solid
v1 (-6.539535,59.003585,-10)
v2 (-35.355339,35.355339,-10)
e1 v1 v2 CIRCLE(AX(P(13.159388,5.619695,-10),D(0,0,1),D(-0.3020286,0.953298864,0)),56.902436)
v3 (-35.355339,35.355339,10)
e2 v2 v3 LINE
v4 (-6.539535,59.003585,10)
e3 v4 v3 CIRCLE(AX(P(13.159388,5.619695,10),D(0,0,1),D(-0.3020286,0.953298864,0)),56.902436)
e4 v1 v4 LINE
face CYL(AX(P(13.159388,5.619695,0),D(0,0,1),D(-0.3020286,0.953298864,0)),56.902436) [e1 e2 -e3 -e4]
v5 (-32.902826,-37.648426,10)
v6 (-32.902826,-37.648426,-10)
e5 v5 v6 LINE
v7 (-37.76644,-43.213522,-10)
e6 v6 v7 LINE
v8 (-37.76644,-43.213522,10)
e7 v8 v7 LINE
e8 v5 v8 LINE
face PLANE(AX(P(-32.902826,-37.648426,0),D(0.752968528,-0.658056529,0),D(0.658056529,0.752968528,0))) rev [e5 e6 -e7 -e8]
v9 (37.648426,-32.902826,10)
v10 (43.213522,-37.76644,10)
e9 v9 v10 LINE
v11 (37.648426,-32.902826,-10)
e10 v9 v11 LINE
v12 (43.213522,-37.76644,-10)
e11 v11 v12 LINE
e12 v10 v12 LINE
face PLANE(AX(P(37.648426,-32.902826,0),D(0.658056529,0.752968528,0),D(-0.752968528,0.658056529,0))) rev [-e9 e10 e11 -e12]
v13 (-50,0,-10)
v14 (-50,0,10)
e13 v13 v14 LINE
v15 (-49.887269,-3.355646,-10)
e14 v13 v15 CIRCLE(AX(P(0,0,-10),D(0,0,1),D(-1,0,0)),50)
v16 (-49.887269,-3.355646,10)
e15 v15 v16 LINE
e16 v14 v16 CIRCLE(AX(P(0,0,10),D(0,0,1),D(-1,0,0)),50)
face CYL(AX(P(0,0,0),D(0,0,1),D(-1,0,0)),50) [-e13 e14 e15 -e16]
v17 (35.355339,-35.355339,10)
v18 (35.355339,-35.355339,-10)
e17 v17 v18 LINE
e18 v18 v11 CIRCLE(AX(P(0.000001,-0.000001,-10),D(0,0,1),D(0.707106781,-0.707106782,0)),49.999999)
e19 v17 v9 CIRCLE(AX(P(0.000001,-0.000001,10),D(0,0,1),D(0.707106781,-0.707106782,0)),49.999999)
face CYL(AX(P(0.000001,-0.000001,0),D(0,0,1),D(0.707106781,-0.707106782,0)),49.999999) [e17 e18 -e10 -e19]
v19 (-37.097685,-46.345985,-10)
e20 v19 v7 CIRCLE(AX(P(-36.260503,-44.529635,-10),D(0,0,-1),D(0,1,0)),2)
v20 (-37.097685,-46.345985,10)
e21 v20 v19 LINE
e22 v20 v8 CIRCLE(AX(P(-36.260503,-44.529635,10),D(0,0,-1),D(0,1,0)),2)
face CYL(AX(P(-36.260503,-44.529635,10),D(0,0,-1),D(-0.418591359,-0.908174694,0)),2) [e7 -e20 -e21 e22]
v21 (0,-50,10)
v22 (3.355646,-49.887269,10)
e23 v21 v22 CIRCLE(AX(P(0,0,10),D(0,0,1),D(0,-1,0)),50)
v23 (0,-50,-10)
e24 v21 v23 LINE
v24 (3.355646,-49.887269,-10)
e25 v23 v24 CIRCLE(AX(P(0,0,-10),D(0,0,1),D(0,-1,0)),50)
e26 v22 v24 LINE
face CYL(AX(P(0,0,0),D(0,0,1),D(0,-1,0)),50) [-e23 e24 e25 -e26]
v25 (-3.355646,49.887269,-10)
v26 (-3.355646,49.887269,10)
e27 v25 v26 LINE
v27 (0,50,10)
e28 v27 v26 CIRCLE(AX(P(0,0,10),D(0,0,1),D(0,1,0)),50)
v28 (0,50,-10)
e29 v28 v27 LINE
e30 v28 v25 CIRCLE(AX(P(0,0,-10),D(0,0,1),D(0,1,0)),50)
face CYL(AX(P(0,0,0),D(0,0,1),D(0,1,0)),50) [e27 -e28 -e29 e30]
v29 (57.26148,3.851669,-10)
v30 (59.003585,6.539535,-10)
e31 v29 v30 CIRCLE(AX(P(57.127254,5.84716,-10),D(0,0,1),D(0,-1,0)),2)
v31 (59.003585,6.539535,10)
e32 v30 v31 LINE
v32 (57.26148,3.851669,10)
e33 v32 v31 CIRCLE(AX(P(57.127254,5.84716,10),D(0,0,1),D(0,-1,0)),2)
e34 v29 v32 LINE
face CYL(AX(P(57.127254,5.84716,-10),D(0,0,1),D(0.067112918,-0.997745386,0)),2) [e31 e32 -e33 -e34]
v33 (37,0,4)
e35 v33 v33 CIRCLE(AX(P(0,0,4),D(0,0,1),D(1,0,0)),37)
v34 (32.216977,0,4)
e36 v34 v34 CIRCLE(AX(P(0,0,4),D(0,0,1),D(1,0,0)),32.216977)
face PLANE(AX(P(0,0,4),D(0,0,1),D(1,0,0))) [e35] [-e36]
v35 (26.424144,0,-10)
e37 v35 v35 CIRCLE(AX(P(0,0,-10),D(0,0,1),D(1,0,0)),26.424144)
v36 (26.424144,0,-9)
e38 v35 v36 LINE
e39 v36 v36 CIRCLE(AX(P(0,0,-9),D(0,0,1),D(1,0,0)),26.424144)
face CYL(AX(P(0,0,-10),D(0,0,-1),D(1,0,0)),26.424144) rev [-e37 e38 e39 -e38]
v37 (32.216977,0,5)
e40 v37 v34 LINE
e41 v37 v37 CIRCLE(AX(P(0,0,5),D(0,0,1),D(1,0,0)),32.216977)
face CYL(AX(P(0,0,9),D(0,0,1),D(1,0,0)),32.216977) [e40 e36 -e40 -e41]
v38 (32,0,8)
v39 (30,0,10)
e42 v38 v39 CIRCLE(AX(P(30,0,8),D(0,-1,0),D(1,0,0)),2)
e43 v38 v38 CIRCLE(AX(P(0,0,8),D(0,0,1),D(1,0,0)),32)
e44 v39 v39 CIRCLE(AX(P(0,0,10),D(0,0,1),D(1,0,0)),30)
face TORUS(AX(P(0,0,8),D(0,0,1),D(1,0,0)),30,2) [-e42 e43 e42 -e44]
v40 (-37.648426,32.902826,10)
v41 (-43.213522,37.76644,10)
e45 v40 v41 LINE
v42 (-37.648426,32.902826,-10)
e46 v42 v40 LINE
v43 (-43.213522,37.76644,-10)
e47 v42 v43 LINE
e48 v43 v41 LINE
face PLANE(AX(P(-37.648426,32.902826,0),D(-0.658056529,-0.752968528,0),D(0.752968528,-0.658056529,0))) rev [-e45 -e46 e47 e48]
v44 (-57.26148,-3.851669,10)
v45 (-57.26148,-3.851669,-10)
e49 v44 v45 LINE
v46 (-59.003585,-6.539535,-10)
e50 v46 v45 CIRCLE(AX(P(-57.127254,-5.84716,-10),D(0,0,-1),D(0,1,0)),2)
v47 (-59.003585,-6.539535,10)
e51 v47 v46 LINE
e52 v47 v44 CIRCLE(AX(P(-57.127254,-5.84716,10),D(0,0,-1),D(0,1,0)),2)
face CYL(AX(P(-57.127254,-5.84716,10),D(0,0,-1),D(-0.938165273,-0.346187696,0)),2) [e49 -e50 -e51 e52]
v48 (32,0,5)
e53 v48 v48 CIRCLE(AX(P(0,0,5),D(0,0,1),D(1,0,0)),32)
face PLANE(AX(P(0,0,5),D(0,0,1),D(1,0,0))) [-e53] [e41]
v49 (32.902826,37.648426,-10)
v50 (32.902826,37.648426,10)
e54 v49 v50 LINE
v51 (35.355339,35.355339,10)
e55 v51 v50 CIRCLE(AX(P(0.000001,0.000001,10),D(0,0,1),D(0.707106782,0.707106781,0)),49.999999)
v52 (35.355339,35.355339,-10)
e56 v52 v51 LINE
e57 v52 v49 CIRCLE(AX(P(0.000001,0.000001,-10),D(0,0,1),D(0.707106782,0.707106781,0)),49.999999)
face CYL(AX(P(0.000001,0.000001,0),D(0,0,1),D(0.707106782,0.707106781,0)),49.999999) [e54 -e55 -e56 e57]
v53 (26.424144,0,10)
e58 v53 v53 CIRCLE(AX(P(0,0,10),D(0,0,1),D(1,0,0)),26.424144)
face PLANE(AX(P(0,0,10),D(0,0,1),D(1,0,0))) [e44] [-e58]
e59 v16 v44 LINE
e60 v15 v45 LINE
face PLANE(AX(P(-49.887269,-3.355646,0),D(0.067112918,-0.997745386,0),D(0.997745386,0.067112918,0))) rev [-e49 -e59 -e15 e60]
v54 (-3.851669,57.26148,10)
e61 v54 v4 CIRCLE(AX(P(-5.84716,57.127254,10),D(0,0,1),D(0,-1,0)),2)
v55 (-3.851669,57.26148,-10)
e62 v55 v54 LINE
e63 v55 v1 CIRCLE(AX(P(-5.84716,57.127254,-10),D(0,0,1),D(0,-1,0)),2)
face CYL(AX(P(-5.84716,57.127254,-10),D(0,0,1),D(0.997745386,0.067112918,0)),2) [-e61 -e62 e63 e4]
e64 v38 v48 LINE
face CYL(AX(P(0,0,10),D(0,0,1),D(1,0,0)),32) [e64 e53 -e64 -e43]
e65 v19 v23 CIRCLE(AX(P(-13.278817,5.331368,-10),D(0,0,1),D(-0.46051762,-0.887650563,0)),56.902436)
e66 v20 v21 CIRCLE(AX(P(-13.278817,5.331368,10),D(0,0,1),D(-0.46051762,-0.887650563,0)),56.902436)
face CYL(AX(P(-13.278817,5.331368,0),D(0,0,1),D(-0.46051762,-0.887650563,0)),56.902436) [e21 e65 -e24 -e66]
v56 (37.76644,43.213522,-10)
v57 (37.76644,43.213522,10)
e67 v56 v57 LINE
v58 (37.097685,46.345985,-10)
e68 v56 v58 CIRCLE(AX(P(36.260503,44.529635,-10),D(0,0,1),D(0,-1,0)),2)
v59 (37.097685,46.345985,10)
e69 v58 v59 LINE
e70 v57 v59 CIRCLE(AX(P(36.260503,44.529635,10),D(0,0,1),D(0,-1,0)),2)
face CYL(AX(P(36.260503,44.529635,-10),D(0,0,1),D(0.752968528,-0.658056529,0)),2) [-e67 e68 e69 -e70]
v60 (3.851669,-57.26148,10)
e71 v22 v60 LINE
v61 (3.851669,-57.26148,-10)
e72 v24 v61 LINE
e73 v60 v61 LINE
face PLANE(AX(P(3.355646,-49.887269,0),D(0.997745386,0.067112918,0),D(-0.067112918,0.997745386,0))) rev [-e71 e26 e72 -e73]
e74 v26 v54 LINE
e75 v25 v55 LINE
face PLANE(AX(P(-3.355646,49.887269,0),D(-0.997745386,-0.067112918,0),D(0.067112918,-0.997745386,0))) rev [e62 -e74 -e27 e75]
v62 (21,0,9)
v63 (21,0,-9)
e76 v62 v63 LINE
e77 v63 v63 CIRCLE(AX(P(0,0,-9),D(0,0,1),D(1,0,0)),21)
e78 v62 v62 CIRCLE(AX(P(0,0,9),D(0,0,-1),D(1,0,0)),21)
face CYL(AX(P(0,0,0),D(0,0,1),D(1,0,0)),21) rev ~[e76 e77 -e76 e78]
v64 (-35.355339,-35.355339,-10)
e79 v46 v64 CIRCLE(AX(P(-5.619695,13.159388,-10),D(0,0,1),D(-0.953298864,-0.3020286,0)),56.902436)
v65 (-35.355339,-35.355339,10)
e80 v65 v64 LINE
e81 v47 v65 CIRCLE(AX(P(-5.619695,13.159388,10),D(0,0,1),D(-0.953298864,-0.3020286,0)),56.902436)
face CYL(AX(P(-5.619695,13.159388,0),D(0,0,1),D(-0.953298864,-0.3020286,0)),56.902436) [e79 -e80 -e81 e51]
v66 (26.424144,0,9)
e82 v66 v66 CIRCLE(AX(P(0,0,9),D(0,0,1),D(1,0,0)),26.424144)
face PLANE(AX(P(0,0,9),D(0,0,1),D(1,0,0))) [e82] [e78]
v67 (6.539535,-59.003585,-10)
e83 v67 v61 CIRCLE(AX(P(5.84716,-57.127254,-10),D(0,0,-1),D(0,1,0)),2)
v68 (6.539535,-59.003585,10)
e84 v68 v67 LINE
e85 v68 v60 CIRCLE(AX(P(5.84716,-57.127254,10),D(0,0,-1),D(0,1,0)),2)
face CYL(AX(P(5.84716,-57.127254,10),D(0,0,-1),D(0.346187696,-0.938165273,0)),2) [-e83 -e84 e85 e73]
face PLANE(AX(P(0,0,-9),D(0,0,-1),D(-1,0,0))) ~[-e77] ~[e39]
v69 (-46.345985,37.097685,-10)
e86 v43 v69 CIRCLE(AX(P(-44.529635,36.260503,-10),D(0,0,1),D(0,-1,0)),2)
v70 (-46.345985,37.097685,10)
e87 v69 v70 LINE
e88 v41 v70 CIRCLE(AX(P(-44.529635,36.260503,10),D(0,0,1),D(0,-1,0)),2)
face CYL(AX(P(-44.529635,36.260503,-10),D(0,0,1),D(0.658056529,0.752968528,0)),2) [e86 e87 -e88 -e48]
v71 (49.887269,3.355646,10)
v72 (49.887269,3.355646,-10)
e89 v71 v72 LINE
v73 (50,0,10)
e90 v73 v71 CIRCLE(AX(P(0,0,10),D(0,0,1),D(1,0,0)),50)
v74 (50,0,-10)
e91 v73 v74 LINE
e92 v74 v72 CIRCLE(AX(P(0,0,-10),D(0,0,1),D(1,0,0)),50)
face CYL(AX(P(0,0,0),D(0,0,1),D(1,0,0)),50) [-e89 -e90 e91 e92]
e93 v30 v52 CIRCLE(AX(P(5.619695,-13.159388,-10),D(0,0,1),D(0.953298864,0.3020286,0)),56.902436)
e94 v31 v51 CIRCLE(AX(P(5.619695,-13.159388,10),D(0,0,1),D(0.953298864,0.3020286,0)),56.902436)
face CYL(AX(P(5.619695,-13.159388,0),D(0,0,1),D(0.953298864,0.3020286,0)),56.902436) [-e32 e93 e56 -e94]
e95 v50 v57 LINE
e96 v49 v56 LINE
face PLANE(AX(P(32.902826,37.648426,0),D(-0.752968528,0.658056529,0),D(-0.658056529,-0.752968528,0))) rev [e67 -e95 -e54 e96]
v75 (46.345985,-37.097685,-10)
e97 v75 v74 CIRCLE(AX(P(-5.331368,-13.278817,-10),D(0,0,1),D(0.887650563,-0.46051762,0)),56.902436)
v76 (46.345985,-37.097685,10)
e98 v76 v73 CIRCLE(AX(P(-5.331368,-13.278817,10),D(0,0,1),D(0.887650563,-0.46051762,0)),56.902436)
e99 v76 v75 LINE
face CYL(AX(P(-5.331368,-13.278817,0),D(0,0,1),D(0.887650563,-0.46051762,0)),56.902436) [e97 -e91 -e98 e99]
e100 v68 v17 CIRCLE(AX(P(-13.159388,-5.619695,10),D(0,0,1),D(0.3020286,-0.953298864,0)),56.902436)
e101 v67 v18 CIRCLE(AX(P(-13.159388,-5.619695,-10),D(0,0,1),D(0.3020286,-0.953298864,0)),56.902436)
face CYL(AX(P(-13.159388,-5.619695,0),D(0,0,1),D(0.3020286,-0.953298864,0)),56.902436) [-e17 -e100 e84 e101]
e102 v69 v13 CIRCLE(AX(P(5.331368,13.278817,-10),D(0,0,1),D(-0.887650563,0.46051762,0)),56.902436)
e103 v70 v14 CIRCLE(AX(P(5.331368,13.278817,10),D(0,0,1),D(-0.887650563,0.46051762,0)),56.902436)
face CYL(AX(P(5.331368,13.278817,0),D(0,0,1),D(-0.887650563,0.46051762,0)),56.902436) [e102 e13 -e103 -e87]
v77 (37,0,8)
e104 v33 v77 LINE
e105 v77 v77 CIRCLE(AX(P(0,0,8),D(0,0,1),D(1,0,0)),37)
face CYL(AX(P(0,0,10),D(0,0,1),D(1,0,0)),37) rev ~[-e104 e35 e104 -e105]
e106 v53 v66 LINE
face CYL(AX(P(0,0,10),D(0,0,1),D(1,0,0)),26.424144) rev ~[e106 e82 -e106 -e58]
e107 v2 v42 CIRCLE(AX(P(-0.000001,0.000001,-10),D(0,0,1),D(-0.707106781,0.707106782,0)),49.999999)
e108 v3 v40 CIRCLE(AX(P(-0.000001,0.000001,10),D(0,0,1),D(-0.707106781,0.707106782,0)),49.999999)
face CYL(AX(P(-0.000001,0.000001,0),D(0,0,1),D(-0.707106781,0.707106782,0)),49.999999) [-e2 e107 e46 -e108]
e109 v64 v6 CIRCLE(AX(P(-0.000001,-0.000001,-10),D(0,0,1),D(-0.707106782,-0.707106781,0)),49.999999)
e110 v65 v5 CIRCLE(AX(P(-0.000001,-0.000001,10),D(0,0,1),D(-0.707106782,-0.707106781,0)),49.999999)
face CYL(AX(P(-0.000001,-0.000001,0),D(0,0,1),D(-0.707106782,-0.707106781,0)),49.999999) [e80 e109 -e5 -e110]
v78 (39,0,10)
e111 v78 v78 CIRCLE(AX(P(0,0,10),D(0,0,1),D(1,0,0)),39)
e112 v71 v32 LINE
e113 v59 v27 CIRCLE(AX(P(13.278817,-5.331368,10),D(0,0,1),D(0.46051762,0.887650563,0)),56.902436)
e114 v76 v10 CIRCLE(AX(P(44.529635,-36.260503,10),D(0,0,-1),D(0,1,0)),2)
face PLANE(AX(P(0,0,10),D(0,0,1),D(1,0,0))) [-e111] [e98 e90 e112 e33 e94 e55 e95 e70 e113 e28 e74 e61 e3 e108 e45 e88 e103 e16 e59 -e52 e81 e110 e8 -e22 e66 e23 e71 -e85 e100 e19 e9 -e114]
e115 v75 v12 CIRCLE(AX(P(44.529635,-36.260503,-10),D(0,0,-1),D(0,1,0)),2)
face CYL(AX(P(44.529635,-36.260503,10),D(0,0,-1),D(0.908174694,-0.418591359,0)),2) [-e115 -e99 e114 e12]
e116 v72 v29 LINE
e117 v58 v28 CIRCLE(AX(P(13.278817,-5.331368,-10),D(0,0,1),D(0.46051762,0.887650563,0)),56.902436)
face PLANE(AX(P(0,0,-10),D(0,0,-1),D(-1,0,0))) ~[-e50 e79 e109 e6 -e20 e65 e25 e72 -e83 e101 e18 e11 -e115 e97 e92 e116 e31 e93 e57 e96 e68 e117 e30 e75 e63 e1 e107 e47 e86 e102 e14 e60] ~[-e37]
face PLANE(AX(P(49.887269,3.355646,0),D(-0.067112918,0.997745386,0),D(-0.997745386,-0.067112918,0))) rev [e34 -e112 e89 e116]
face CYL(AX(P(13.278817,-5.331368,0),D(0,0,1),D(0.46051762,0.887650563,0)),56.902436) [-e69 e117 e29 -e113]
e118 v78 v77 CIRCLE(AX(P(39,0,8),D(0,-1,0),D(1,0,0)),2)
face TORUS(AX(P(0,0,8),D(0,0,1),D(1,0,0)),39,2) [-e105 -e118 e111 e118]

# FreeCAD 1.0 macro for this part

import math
import FreeCAD as App
import Part
import Sketcher

V = App.Vector


def edges_at(feature, points):
    """Names of the edges that pass closest to the given points."""
    edges = feature.Shape.Edges
    near = lambda p: min(range(len(edges)), key=lambda i: edges[i].distToShape(Part.Vertex(*p))[0])
    return sorted({f"Edge{near(p) + 1}" for p in points})

doc = App.newDocument("Part")
params = doc.addObject("Spreadsheet::Sheet", "Params")
for row, (alias, value) in enumerate([
    ("sketch1_diameter", "42 mm"),
    ("sketch1_radius", "49.999999 mm"),
    ("sketch1_length", "10 mm"),
    ("pad1_length", "10 mm"),
    ("pocket1_length", "1 mm"),
    ("fillet_radius", "2 mm"),
    ("sketch3_diameter", "74 mm"),
    ("pocket2_length", "5 mm"),
    ("sketch4_diameter", "74 mm"),
    ("sketch4_diameter2", "64 mm"),
    ("pocket3_length", "5 mm"),
    ("fillet2_radius", "2 mm"),
], start=1):
    params.set(f"A{row}", alias)
    params.set(f"B{row}", "=" + value)
    params.setAlias(f"B{row}", alias)

body = doc.addObject("PartDesign::Body", "Body")

sketch1 = body.newObject("Sketcher::SketchObject", "Sketch")
sketch1.AttachmentSupport = (doc.getObject("XY_Plane"), [""])
sketch1.MapMode = "FlatFace"
sketch1.addGeometry([
    Part.LineSegment(V(49.9, 3.4, 0), V(59.9, 4, 0)),
    Part.ArcOfCircle(Part.Circle(V(5.6, -13.2, 0), V(0, 0, 1), 56.9), math.radians(18), math.radians(58)),
    Part.ArcOfCircle(Part.Circle(V(0, 0, 0), V(0, 0, 1), 50), math.radians(45), math.radians(48.85)),
    Part.LineSegment(V(32.9, 37.6, 0), V(39.5, 45.2, 0)),
    Part.ArcOfCircle(Part.Circle(V(13.3, -5.3, 0), V(0, 0, 1), 56.9), math.radians(63), math.radians(103)),
    Part.ArcOfCircle(Part.Circle(V(0, 0, 0), V(0, 0, 1), 50), math.radians(90), math.radians(93.85)),
    Part.LineSegment(V(-3.4, 49.9, 0), V(-4, 59.9, 0)),
    Part.ArcOfCircle(Part.Circle(V(13.2, 5.6, 0), V(0, 0, 1), 56.9), math.radians(108), math.radians(148)),
    Part.ArcOfCircle(Part.Circle(V(0, 0, 0), V(0, 0, 1), 50), math.radians(135), math.radians(138.85)),
    Part.LineSegment(V(-37.6, 32.9, 0), V(-45.2, 39.5, 0)),
    Part.ArcOfCircle(Part.Circle(V(5.3, 13.3, 0), V(0, 0, 1), 56.9), math.radians(153), math.radians(193)),
    Part.ArcOfCircle(Part.Circle(V(0, 0, 0), V(0, 0, 1), 50), math.radians(180), math.radians(183.85)),
    Part.LineSegment(V(-49.9, -3.4, 0), V(-59.9, -4, 0)),
    Part.ArcOfCircle(Part.Circle(V(-5.6, 13.2, 0), V(0, 0, 1), 56.9), math.radians(-162), math.radians(-122)),
    Part.ArcOfCircle(Part.Circle(V(0, 0, 0), V(0, 0, 1), 50), math.radians(-135), math.radians(-131.15)),
    Part.LineSegment(V(-32.9, -37.6, 0), V(-39.5, -45.2, 0)),
    Part.ArcOfCircle(Part.Circle(V(-13.3, 5.3, 0), V(0, 0, 1), 56.9), math.radians(-117), math.radians(-77)),
    Part.ArcOfCircle(Part.Circle(V(0, 0, 0), V(0, 0, 1), 50), math.radians(-90), math.radians(-86.15)),
    Part.LineSegment(V(3.4, -49.9, 0), V(4, -59.9, 0)),
    Part.ArcOfCircle(Part.Circle(V(-13.2, -5.6, 0), V(0, 0, 1), 56.9), math.radians(-72), math.radians(-32)),
    Part.ArcOfCircle(Part.Circle(V(0, 0, 0), V(0, 0, 1), 50), math.radians(-45), math.radians(-41.15)),
    Part.LineSegment(V(37.6, -32.9, 0), V(45.2, -39.5, 0)),
    Part.ArcOfCircle(Part.Circle(V(-5.3, -13.3, 0), V(0, 0, 1), 56.9), math.radians(-27), math.radians(13)),
    Part.ArcOfCircle(Part.Circle(V(0, 0, 0), V(0, 0, 1), 50), math.radians(0), math.radians(3.85)),
    Part.Circle(V(0, 0, 0), V(0, 0, 1), 21),
], False)
sketch1.addConstraint([
    Sketcher.Constraint("Coincident", 0, 2, 1, 1),
    Sketcher.Constraint("Coincident", 1, 2, 2, 1),
    Sketcher.Constraint("Coincident", 2, 2, 3, 1),
    Sketcher.Constraint("Coincident", 3, 2, 4, 1),
    Sketcher.Constraint("Coincident", 4, 2, 5, 1),
    Sketcher.Constraint("Coincident", 5, 2, 6, 1),
    Sketcher.Constraint("Coincident", 6, 2, 7, 1),
    Sketcher.Constraint("Coincident", 7, 2, 8, 1),
    Sketcher.Constraint("Coincident", 8, 2, 9, 1),
    Sketcher.Constraint("Coincident", 9, 2, 10, 1),
    Sketcher.Constraint("Coincident", 10, 2, 11, 1),
    Sketcher.Constraint("Coincident", 11, 2, 12, 1),
    Sketcher.Constraint("Coincident", 12, 2, 13, 1),
    Sketcher.Constraint("Coincident", 13, 2, 14, 1),
    Sketcher.Constraint("Coincident", 14, 2, 15, 1),
    Sketcher.Constraint("Coincident", 15, 2, 16, 1),
    Sketcher.Constraint("Coincident", 16, 2, 17, 1),
    Sketcher.Constraint("Coincident", 17, 2, 18, 1),
    Sketcher.Constraint("Coincident", 18, 2, 19, 1),
    Sketcher.Constraint("Coincident", 19, 2, 20, 1),
    Sketcher.Constraint("Coincident", 20, 2, 21, 1),
    Sketcher.Constraint("Coincident", 21, 2, 22, 1),
    Sketcher.Constraint("Coincident", 22, 2, 23, 1),
    Sketcher.Constraint("Coincident", 23, 2, 0, 1),
    Sketcher.Constraint("Coincident", 2, 3, -1, 1),
    Sketcher.Constraint("Coincident", 5, 3, -1, 1),
    Sketcher.Constraint("Coincident", 8, 3, -1, 1),
    Sketcher.Constraint("Coincident", 11, 3, -1, 1),
    Sketcher.Constraint("Coincident", 14, 3, -1, 1),
    Sketcher.Constraint("Coincident", 17, 3, -1, 1),
    Sketcher.Constraint("Coincident", 20, 3, -1, 1),
    Sketcher.Constraint("Coincident", 23, 3, -1, 1),
    Sketcher.Constraint("Coincident", 24, 3, -1, 1),
    Sketcher.Constraint("Equal", 1, 4),
    Sketcher.Constraint("Equal", 2, 5),
    Sketcher.Constraint("Equal", 4, 7),
    Sketcher.Constraint("Equal", 5, 8),
    Sketcher.Constraint("Equal", 7, 10),
    Sketcher.Constraint("Equal", 8, 11),
    Sketcher.Constraint("Equal", 10, 13),
    Sketcher.Constraint("Equal", 11, 14),
    Sketcher.Constraint("Equal", 13, 16),
    Sketcher.Constraint("Equal", 14, 17),
    Sketcher.Constraint("Equal", 16, 19),
    Sketcher.Constraint("Equal", 17, 20),
    Sketcher.Constraint("Equal", 19, 22),
    Sketcher.Constraint("Equal", 20, 23),
    Sketcher.Constraint("Symmetric", 1, 3, 13, 3, -1, 1),
    Sketcher.Constraint("Symmetric", 4, 3, 16, 3, -1, 1),
    Sketcher.Constraint("Symmetric", 7, 3, 19, 3, -1, 1),
    Sketcher.Constraint("Symmetric", 10, 3, 22, 3, -1, 1),
    Sketcher.Constraint("PointOnObject", 4, 2, -2),
    Sketcher.Constraint("PointOnObject", 10, 2, -1),
    Sketcher.Constraint("Perpendicular", 0, 6),
    Sketcher.Constraint("Perpendicular", 3, 9),
    Sketcher.Constraint("Perpendicular", 6, 12),
    Sketcher.Constraint("Perpendicular", 9, 15),
    Sketcher.Constraint("Perpendicular", 12, 18),
    Sketcher.Constraint("Perpendicular", 15, 21),
    Sketcher.Constraint("Horizontal", 1, 2, 7, 2),
    Sketcher.Constraint("Equal", 0, 3),
    Sketcher.Constraint("Equal", 3, 6),
    Sketcher.Constraint("Equal", 6, 9),
    Sketcher.Constraint("Equal", 9, 12),
    Sketcher.Constraint("Equal", 12, 15),
    Sketcher.Constraint("Equal", 15, 18),
    Sketcher.Constraint("Equal", 18, 21),
    Sketcher.Constraint("Diameter", 24, 42.0),
    Sketcher.Constraint("Radius", 2, 49.999999),
    Sketcher.Constraint("Distance", 0, 10.0),
    Sketcher.Constraint("Radius", 1, 56.902436),
    Sketcher.Constraint("DistanceX", 6, 2, 2, 2, 36.929602),
    Sketcher.Constraint("DistanceY", 12, 2, 8, 2, 36.929602),
    Sketcher.Constraint("DistanceY", 1, 3, -1, 1, 13.159388),
    Sketcher.Constraint("DistanceY", 4, 3, -1, 1, 5.331368),
    Sketcher.Constraint("DistanceX", -1, 1, 7, 3, 13.159388),
    Sketcher.Constraint("DistanceX", -1, 1, 10, 3, 5.331368),
    Sketcher.Constraint("DistanceY", -1, 1, 5, 2, 49.887269),
])
sketch1.setExpression("Constraints[67]", "Params.sketch1_diameter")
sketch1.setExpression("Constraints[68]", "Params.sketch1_radius")
sketch1.setExpression("Constraints[69]", "Params.sketch1_length")
pad1 = body.newObject("PartDesign::Pad", "Pad")
pad1.Profile = sketch1
pad1.setExpression("Length", "Params.pad1_length")

sketch2 = body.newObject("Sketcher::SketchObject", "Sketch001")
sketch2.AttachmentSupport = (doc.getObject("XY_Plane"), [""])
sketch2.MapMode = "FlatFace"
sketch2.AttachmentOffset = App.Placement(V(0, 0, 10), App.Rotation())
sketch2.addGeometry(Part.Circle(V(0, 0, 0), V(0, 0, 1), 26), False)
sketch2.addConstraint([
    Sketcher.Constraint("Coincident", 0, 3, -1, 1),
    Sketcher.Constraint("Diameter", 0, 52.848289),
])
pocket1 = body.newObject("PartDesign::Pocket", "Pocket")
pocket1.Profile = sketch2
pocket1.setExpression("Length", "Params.pocket1_length")
doc.recompute()

mirrored = body.newObject("PartDesign::Mirrored", "Mirrored")
mirrored.Originals = [pad1, pocket1]
mirrored.MirrorPlane = (doc.getObject("XY_Plane"), [""])
body.Tip = mirrored
doc.recompute()

fillet = body.newObject("PartDesign::Fillet", "Fillet")
fillet.Base = (mirrored, edges_at(mirrored, [
    (59.865, 4.027, 0),
    (45.178, -39.483, 0),
    (4.027, -59.865, 0),
    (-39.483, -45.178, 0),
    (-59.865, -4.027, 0),
    (-45.178, 39.483, 0),
    (-4.027, 59.865, 0),
    (39.483, 45.178, 0),
]))
fillet.setExpression("Radius", "Params.fillet_radius")

sketch3 = body.newObject("Sketcher::SketchObject", "Sketch002")
sketch3.AttachmentSupport = (doc.getObject("XY_Plane"), [""])
sketch3.MapMode = "FlatFace"
sketch3.AttachmentOffset = App.Placement(V(0, 0, 9), App.Rotation())
sketch3.addGeometry([
    Part.Circle(V(0, 0, 0), V(0, 0, 1), 37),
    Part.Circle(V(0, 0, 0), V(0, 0, 1), 32),
], False)
sketch3.addConstraint([
    Sketcher.Constraint("Coincident", 0, 3, -1, 1),
    Sketcher.Constraint("Coincident", 1, 3, -1, 1),
    Sketcher.Constraint("Diameter", 0, 74.0),
    Sketcher.Constraint("Diameter", 1, 64.433955),
])
sketch3.setExpression("Constraints[2]", "Params.sketch3_diameter")
pocket2 = body.newObject("PartDesign::Pocket", "Pocket001")
pocket2.Profile = sketch3
pocket2.setExpression("Length", "Params.pocket2_length")

sketch4 = body.newObject("Sketcher::SketchObject", "Sketch003")
sketch4.AttachmentSupport = (doc.getObject("XY_Plane"), [""])
sketch4.MapMode = "FlatFace"
sketch4.AttachmentOffset = App.Placement(V(0, 0, 10), App.Rotation())
sketch4.addGeometry([
    Part.Circle(V(0, 0, 0), V(0, 0, 1), 37),
    Part.Circle(V(0, 0, 0), V(0, 0, 1), 32),
], False)
sketch4.addConstraint([
    Sketcher.Constraint("Coincident", 0, 3, -1, 1),
    Sketcher.Constraint("Coincident", 1, 3, -1, 1),
    Sketcher.Constraint("Diameter", 0, 74.0),
    Sketcher.Constraint("Diameter", 1, 64.0),
])
sketch4.setExpression("Constraints[2]", "Params.sketch4_diameter")
sketch4.setExpression("Constraints[3]", "Params.sketch4_diameter2")
pocket3 = body.newObject("PartDesign::Pocket", "Pocket002")
pocket3.Profile = sketch4
pocket3.setExpression("Length", "Params.pocket3_length")
doc.recompute()

fillet2 = body.newObject("PartDesign::Fillet", "Fillet001")
fillet2.Base = (pocket3, edges_at(pocket3, [(-37, 0, 10), (-32, 0, 10)]))
fillet2.setExpression("Radius", "Params.fillet2_radius")

doc.recompute()
